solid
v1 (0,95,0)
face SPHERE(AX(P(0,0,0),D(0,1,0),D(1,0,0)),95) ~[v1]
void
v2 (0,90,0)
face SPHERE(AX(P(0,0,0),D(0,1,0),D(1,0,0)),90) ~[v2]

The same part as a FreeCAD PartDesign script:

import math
import FreeCAD as App
import Part
import Sketcher
Q = App.Units.Quantity

doc = App.newDocument("Part")
params = doc.addObject("Spreadsheet::Sheet", "Params")
for row, (alias, value) in enumerate([
    ("sketch1_radius", "95 mm"),
    ("sketch1_height", "5 mm"),
    ("revolution_angle", "360 deg"),
], start=1):
    params.set(f"A{row}", alias)
    params.set(f"B{row}", "=" + value)
    params.setAlias(f"B{row}", alias)

body = doc.addObject("PartDesign::Body", "Body")

sketch1 = doc.addObject("Sketcher::SketchObject", "Sketch")
body.addObject(sketch1)
sketch1.AttachmentSupport = (doc.XY_Plane, [""])
sketch1.MapMode = "FlatFace"
sketch1.addGeometry(Part.LineSegment(App.Vector(0, 95, 0), App.Vector(0, 90, 0)), False)
sketch1.addGeometry(Part.ArcOfCircle(Part.Circle(App.Vector(0, 0, 0), App.Vector(0, 0, 1), 90), math.radians(-90), math.radians(90)), False)
sketch1.addGeometry(Part.LineSegment(App.Vector(0, -90, 0), App.Vector(0, -95, 0)), False)
sketch1.addGeometry(Part.ArcOfCircle(Part.Circle(App.Vector(0, 0, 0), App.Vector(0, 0, 1), 95), math.radians(-90), math.radians(90)), False)
sketch1.addConstraint(Sketcher.Constraint("Coincident", 0, 2, 1, 2))
sketch1.addConstraint(Sketcher.Constraint("Coincident", 1, 1, 2, 1))
sketch1.addConstraint(Sketcher.Constraint("Coincident", 2, 2, 3, 1))
sketch1.addConstraint(Sketcher.Constraint("Coincident", 3, 2, 0, 1))
sketch1.addConstraint(Sketcher.Constraint("Vertical", 0))
sketch1.addConstraint(Sketcher.Constraint("Vertical", 2))
sketch1.addConstraint(Sketcher.Constraint("Coincident", 1, 3, -1, 1))
sketch1.addConstraint(Sketcher.Constraint("Coincident", 3, 3, -1, 1))
sketch1.addConstraint(Sketcher.Constraint("PointOnObject", 0, 2, -2))
sketch1.addConstraint(Sketcher.Constraint("PointOnObject", 1, 1, -2))
sketch1.addConstraint(Sketcher.Constraint("Radius", 3, Q("95 mm")))
sketch1.addConstraint(Sketcher.Constraint("DistanceY", 0, 2, 0, 1, Q("5 mm")))
sketch1.setExpression("Constraints[10]", "Params.sketch1_radius")
sketch1.setExpression("Constraints[11]", "Params.sketch1_height")
revolution = doc.addObject("PartDesign::Revolution", "Revolution")
body.addObject(revolution)
revolution.Profile = sketch1
revolution.ReferenceAxis = (sketch1, ["V_Axis"])
revolution.setExpression("Angle", "Params.revolution_angle")

doc.recompute()
